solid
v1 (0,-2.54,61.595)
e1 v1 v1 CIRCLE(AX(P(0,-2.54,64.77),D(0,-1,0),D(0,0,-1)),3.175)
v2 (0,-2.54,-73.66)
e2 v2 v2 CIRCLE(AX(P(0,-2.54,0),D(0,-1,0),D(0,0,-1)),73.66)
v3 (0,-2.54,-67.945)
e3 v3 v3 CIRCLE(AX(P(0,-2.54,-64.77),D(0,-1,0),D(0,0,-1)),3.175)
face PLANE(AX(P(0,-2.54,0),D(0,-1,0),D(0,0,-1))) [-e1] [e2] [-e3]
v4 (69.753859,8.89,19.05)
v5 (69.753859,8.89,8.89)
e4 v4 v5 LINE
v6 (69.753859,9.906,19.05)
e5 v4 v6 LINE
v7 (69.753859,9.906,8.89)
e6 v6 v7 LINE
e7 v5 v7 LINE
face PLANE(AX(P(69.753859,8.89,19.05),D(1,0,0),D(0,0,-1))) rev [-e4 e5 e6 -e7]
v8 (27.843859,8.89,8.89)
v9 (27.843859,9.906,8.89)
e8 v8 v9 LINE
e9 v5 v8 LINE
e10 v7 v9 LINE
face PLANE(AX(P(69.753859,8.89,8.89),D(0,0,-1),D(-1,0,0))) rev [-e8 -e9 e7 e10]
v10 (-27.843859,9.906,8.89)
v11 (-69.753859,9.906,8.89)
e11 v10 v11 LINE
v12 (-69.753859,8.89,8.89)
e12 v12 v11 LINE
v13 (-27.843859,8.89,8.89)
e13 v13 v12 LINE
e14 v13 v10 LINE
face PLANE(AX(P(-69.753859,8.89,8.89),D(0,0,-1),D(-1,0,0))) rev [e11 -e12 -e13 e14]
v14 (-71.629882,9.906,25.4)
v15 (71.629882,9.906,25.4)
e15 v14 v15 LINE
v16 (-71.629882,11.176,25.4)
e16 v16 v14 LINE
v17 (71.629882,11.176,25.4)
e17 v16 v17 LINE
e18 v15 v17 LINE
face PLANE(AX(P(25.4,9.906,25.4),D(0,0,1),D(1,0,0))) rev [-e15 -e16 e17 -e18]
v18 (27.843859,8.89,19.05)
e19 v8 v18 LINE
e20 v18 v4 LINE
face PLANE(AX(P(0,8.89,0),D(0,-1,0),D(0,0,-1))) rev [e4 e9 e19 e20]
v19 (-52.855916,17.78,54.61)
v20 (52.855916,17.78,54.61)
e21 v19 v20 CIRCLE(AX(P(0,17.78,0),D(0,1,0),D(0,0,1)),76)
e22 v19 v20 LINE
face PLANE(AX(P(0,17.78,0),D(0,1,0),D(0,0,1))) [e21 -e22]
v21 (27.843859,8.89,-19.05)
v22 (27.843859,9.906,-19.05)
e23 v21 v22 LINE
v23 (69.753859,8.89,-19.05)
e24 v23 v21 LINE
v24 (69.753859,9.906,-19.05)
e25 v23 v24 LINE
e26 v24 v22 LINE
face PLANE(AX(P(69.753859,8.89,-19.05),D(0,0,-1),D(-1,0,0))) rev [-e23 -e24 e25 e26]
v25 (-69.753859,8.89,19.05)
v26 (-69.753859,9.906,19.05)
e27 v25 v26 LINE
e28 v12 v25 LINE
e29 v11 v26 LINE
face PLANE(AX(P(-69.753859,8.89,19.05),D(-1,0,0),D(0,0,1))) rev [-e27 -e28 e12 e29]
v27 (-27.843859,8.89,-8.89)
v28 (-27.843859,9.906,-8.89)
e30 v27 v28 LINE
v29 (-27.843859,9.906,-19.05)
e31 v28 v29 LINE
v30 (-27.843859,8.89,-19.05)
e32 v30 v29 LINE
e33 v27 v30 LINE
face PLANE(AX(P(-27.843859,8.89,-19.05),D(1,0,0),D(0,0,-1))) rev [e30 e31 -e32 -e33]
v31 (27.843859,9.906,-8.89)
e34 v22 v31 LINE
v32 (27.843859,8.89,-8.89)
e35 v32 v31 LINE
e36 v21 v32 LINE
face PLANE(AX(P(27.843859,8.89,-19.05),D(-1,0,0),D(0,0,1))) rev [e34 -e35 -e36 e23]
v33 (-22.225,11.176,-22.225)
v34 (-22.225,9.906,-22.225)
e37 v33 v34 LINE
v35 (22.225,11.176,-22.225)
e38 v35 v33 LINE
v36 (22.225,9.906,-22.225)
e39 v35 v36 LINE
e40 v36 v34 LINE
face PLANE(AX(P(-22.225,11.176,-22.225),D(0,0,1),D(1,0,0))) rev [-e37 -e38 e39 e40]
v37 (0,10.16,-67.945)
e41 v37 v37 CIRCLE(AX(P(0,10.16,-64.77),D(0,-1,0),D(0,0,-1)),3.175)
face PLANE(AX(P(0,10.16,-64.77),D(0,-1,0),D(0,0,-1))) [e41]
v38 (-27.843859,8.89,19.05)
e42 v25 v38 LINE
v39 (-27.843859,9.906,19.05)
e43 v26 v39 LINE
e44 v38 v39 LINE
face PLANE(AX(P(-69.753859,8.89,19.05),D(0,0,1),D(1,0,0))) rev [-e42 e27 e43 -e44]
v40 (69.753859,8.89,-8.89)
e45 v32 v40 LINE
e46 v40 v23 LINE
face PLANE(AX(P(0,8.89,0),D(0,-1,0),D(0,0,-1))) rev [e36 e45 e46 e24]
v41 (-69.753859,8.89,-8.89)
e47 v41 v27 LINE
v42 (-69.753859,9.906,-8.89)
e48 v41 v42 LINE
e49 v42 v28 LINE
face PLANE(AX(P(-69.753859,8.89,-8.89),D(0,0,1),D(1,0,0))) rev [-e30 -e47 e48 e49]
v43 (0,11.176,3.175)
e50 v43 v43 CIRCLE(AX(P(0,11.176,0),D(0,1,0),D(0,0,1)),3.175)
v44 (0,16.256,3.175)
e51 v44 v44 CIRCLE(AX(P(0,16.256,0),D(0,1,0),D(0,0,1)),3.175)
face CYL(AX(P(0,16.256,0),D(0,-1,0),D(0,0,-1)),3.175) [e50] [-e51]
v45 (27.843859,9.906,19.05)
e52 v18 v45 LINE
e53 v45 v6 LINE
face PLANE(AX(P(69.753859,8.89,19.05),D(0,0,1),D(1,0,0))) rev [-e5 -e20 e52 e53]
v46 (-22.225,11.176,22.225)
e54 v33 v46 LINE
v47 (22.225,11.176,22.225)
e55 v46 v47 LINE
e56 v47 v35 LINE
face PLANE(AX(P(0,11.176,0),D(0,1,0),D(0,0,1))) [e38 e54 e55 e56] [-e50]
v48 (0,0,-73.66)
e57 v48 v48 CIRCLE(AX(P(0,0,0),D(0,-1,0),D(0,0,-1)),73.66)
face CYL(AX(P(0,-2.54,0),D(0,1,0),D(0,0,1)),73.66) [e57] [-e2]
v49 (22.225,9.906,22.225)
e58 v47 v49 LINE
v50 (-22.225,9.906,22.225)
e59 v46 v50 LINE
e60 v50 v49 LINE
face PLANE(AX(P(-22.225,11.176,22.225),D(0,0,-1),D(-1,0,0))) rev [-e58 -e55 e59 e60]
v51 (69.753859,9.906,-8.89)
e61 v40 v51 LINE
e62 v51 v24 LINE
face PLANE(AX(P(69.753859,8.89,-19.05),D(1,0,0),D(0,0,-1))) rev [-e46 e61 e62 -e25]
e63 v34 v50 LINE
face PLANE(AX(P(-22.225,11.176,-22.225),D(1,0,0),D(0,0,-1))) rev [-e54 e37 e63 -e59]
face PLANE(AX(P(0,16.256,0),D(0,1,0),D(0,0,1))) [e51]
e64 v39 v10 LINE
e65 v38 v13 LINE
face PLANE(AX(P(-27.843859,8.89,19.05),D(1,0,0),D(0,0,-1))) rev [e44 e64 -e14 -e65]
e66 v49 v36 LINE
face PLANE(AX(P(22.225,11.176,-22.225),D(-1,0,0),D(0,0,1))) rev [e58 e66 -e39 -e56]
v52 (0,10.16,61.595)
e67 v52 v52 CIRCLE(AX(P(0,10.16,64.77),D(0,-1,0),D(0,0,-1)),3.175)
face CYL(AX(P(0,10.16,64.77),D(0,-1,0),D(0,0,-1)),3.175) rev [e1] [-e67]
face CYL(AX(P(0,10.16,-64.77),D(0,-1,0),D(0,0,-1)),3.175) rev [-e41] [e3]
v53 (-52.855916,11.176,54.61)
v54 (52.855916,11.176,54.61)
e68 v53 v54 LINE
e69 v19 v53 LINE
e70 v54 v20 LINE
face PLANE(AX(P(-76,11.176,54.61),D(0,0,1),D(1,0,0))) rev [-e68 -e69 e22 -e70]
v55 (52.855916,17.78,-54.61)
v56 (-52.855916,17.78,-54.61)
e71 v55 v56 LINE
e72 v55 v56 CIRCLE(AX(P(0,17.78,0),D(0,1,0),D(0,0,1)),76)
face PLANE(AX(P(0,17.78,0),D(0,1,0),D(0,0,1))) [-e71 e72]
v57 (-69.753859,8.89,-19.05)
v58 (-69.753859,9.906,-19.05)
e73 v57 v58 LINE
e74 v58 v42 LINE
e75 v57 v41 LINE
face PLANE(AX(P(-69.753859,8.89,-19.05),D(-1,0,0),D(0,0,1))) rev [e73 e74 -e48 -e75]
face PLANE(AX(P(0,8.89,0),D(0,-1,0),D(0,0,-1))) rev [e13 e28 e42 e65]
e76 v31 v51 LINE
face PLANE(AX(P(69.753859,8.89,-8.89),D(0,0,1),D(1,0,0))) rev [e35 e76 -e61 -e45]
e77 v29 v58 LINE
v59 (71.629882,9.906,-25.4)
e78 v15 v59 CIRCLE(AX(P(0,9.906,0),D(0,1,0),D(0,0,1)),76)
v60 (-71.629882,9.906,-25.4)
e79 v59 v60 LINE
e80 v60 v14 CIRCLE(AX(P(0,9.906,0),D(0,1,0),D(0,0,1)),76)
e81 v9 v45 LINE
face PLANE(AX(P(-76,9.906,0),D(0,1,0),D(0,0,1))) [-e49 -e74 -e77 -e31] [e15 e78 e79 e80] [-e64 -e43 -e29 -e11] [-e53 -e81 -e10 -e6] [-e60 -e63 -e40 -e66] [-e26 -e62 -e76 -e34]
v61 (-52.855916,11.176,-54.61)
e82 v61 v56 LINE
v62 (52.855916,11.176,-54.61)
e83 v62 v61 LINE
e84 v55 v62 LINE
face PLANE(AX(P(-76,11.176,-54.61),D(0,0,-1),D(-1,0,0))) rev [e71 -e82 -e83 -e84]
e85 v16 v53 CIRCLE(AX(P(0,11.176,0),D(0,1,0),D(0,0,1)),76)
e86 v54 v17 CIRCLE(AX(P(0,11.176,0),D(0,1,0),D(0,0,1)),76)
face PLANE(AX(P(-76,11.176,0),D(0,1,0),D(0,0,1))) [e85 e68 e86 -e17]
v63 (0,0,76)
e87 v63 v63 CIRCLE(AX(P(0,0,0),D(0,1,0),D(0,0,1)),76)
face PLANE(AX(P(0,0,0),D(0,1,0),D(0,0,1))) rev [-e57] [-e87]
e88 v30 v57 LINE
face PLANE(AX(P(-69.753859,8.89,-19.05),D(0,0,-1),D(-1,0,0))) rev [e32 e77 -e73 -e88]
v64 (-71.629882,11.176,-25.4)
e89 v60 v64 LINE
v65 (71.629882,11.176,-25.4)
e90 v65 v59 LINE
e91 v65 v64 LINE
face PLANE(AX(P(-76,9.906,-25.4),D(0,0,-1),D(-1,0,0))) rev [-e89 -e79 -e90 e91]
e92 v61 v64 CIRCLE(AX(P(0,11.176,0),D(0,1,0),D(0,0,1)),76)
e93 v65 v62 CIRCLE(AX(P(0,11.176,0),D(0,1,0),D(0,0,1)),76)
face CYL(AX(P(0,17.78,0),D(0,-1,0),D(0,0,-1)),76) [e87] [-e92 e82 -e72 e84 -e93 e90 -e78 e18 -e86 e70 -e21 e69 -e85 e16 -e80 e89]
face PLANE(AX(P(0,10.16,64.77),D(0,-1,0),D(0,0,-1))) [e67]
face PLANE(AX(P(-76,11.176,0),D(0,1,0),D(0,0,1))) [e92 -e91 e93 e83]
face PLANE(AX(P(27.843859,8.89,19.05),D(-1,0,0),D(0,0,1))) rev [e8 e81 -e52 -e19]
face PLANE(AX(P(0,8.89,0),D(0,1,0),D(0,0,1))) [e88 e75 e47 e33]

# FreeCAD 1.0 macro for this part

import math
import FreeCAD as App
import Part
import Sketcher

V = App.Vector
Q = App.Units.Quantity

doc = App.newDocument("Part")
params = doc.addObject("Spreadsheet::Sheet", "Params")
for row, (alias, value) in enumerate([
    ("pad1_length", "0.7 in"),
    ("sketch2_radius", "2.15 in"),
    ("pocket1_length", "0.26 in"),
    ("sketch3_radius", "1 in"),
    ("pocket2_length", "0.05 in"),
    ("sketch4_height", "0.4 in"),
    ("sketch4_width", "1.65 in"),
    ("pocket3_length", "0.04 in"),
    ("sketch5_width", "1.75 in"),
    ("pad2_length", "0.05 in"),
    ("sketch6_diameter", "0.25 in"),
    ("pad3_length", "0.2 in"),
    ("sketch7_diameter", "5.8 in"),
    ("pad4_length", "0.1 in"),
    ("sketch8_diameter", "0.25 in"),
    ("pocket4_length", "0.5 in"),
], start=1):
    params.set(f"A{row}", alias)
    params.set(f"B{row}", "=" + value)
    params.setAlias(f"B{row}", alias)

body = doc.addObject("PartDesign::Body", "Body")

sketch1 = body.newObject("Sketcher::SketchObject", "Sketch")
sketch1.AttachmentSupport = (doc.getObject("XZ_Plane"), [""])
sketch1.MapMode = "FlatFace"
sketch1.addGeometry(Part.Circle(V(0, 0, 0), V(0, 0, 1), 76), False)
sketch1.addConstraint(Sketcher.Constraint("Coincident", 0, 3, -1, 1))
sketch1.addConstraint(Sketcher.Constraint("Diameter", 0, 152.0))
pad1 = body.newObject("PartDesign::Pad", "Pad")
pad1.Profile = sketch1
pad1.setExpression("Length", "Params.pad1_length")
pad1.Reversed = True

sketch2 = body.newObject("Sketcher::SketchObject", "Sketch001")
sketch2.AttachmentSupport = (doc.getObject("XZ_Plane"), [""])
sketch2.MapMode = "FlatFace"
sketch2.AttachmentOffset = App.Placement(V(0, 0, -0.7 * 25.4), App.Rotation())
sketch2.addGeometry(Part.LineSegment(V(76, -54.61, 0), V(-76, -54.61, 0)), False)
sketch2.addGeometry(Part.ArcOfCircle(Part.Circle(V(-76, 0, 0), V(0, 0, 1), 54.61), math.radians(90), math.radians(270)), False)
sketch2.addGeometry(Part.LineSegment(V(-76, 54.61, 0), V(76, 54.61, 0)), False)
sketch2.addGeometry(Part.ArcOfCircle(Part.Circle(V(76, 0, 0), V(0, 0, 1), 54.61), math.radians(-90), math.radians(90)), False)
sketch2.addConstraint(Sketcher.Constraint("Tangent", 0, 2, 1, 2))
sketch2.addConstraint(Sketcher.Constraint("Tangent", 1, 1, 2, 1))
sketch2.addConstraint(Sketcher.Constraint("Tangent", 2, 2, 3, 2))
sketch2.addConstraint(Sketcher.Constraint("Tangent", 3, 1, 0, 1))
sketch2.addConstraint(Sketcher.Constraint("Horizontal", 0))
sketch2.addConstraint(Sketcher.Constraint("Horizontal", 2))
sketch2.addConstraint(Sketcher.Constraint("Symmetric", 1, 3, 3, 3, -1, 1))
sketch2.addConstraint(Sketcher.Constraint("Radius", 1, Q("2.15 in")))
sketch2.addConstraint(Sketcher.Constraint("DistanceX", 0, 2, 0, 1, 152.0))
sketch2.setExpression("Constraints[7]", "Params.sketch2_radius")
pocket1 = body.newObject("PartDesign::Pocket", "Pocket")
pocket1.Profile = sketch2
pocket1.setExpression("Length", "Params.pocket1_length")
pocket1.Reversed = True

sketch3 = body.newObject("Sketcher::SketchObject", "Sketch002")
sketch3.AttachmentSupport = (doc.getObject("XZ_Plane"), [""])
sketch3.MapMode = "FlatFace"
sketch3.AttachmentOffset = App.Placement(V(0, 0, -0.44 * 25.4), App.Rotation())
sketch3.addGeometry(Part.LineSegment(V(76, -25.4, 0), V(-76, -25.4, 0)), False)
sketch3.addGeometry(Part.ArcOfCircle(Part.Circle(V(-76, 0, 0), V(0, 0, 1), 25.4), math.radians(90), math.radians(270)), False)
sketch3.addGeometry(Part.LineSegment(V(-76, 25.4, 0), V(76, 25.4, 0)), False)
sketch3.addGeometry(Part.ArcOfCircle(Part.Circle(V(76, 0, 0), V(0, 0, 1), 25.4), math.radians(-90), math.radians(90)), False)
sketch3.addConstraint(Sketcher.Constraint("Tangent", 0, 2, 1, 2))
sketch3.addConstraint(Sketcher.Constraint("Tangent", 1, 1, 2, 1))
sketch3.addConstraint(Sketcher.Constraint("Tangent", 2, 2, 3, 2))
sketch3.addConstraint(Sketcher.Constraint("Tangent", 3, 1, 0, 1))
sketch3.addConstraint(Sketcher.Constraint("Horizontal", 0))
sketch3.addConstraint(Sketcher.Constraint("Horizontal", 2))
sketch3.addConstraint(Sketcher.Constraint("Symmetric", 1, 3, 3, 3, -1, 1))
sketch3.addConstraint(Sketcher.Constraint("Radius", 1, Q("1 in")))
sketch3.addConstraint(Sketcher.Constraint("DistanceX", 0, 2, 0, 1, 152.0))
sketch3.setExpression("Constraints[7]", "Params.sketch3_radius")
pocket2 = body.newObject("PartDesign::Pocket", "Pocket001")
pocket2.Profile = sketch3
pocket2.setExpression("Length", "Params.pocket2_length")
pocket2.Reversed = True

sketch4 = body.newObject("Sketcher::SketchObject", "Sketch003")
sketch4.AttachmentSupport = (doc.getObject("XZ_Plane"), [""])
sketch4.MapMode = "FlatFace"
sketch4.AttachmentOffset = App.Placement(V(0, 0, -0.39 * 25.4), App.Rotation())
sketch4.addGeometry(Part.LineSegment(V(-69.753859, -19.05, 0), V(-69.753859, -8.89, 0)), False)
sketch4.addGeometry(Part.LineSegment(V(-69.753859, -8.89, 0), V(-27.843859, -8.89, 0)), False)
sketch4.addGeometry(Part.LineSegment(V(-27.843859, -8.89, 0), V(-27.843859, -19.05, 0)), False)
sketch4.addGeometry(Part.LineSegment(V(-27.843859, -19.05, 0), V(-69.753859, -19.05, 0)), False)
sketch4.addGeometry(Part.LineSegment(V(-69.753859, 8.89, 0), V(-69.753859, 19.05, 0)), False)
sketch4.addGeometry(Part.LineSegment(V(-69.753859, 19.05, 0), V(-27.843859, 19.05, 0)), False)
sketch4.addGeometry(Part.LineSegment(V(-27.843859, 19.05, 0), V(-27.843859, 8.89, 0)), False)
sketch4.addGeometry(Part.LineSegment(V(-27.843859, 8.89, 0), V(-69.753859, 8.89, 0)), False)
sketch4.addGeometry(Part.LineSegment(V(27.843859, 8.89, 0), V(27.843859, 19.05, 0)), False)
sketch4.addGeometry(Part.LineSegment(V(27.843859, 19.05, 0), V(69.753859, 19.05, 0)), False)
sketch4.addGeometry(Part.LineSegment(V(69.753859, 19.05, 0), V(69.753859, 8.89, 0)), False)
sketch4.addGeometry(Part.LineSegment(V(69.753859, 8.89, 0), V(27.843859, 8.89, 0)), False)
sketch4.addGeometry(Part.LineSegment(V(27.843859, -19.05, 0), V(27.843859, -8.89, 0)), False)
sketch4.addGeometry(Part.LineSegment(V(27.843859, -8.89, 0), V(69.753859, -8.89, 0)), False)
sketch4.addGeometry(Part.LineSegment(V(69.753859, -8.89, 0), V(69.753859, -19.05, 0)), False)
sketch4.addGeometry(Part.LineSegment(V(69.753859, -19.05, 0), V(27.843859, -19.05, 0)), False)
sketch4.addConstraint(Sketcher.Constraint("Coincident", 0, 2, 1, 1))
sketch4.addConstraint(Sketcher.Constraint("Coincident", 1, 2, 2, 1))
sketch4.addConstraint(Sketcher.Constraint("Coincident", 2, 2, 3, 1))
sketch4.addConstraint(Sketcher.Constraint("Coincident", 3, 2, 0, 1))
sketch4.addConstraint(Sketcher.Constraint("Coincident", 4, 2, 5, 1))
sketch4.addConstraint(Sketcher.Constraint("Coincident", 5, 2, 6, 1))
sketch4.addConstraint(Sketcher.Constraint("Coincident", 6, 2, 7, 1))
sketch4.addConstraint(Sketcher.Constraint("Coincident", 7, 2, 4, 1))
sketch4.addConstraint(Sketcher.Constraint("Coincident", 8, 2, 9, 1))
sketch4.addConstraint(Sketcher.Constraint("Coincident", 9, 2, 10, 1))
sketch4.addConstraint(Sketcher.Constraint("Coincident", 10, 2, 11, 1))
sketch4.addConstraint(Sketcher.Constraint("Coincident", 11, 2, 8, 1))
sketch4.addConstraint(Sketcher.Constraint("Coincident", 12, 2, 13, 1))
sketch4.addConstraint(Sketcher.Constraint("Coincident", 13, 2, 14, 1))
sketch4.addConstraint(Sketcher.Constraint("Coincident", 14, 2, 15, 1))
sketch4.addConstraint(Sketcher.Constraint("Coincident", 15, 2, 12, 1))
sketch4.addConstraint(Sketcher.Constraint("Vertical", 0))
sketch4.addConstraint(Sketcher.Constraint("Horizontal", 1))
sketch4.addConstraint(Sketcher.Constraint("Vertical", 2))
sketch4.addConstraint(Sketcher.Constraint("Horizontal", 3))
sketch4.addConstraint(Sketcher.Constraint("Vertical", 4))
sketch4.addConstraint(Sketcher.Constraint("Horizontal", 5))
sketch4.addConstraint(Sketcher.Constraint("Vertical", 6))
sketch4.addConstraint(Sketcher.Constraint("Horizontal", 7))
sketch4.addConstraint(Sketcher.Constraint("Vertical", 8))
sketch4.addConstraint(Sketcher.Constraint("Horizontal", 9))
sketch4.addConstraint(Sketcher.Constraint("Vertical", 10))
sketch4.addConstraint(Sketcher.Constraint("Horizontal", 11))
sketch4.addConstraint(Sketcher.Constraint("Vertical", 12))
sketch4.addConstraint(Sketcher.Constraint("Horizontal", 13))
sketch4.addConstraint(Sketcher.Constraint("Vertical", 14))
sketch4.addConstraint(Sketcher.Constraint("Horizontal", 15))
sketch4.addConstraint(Sketcher.Constraint("Symmetric", 2, 2, 8, 2, -1, 1))
sketch4.addConstraint(Sketcher.Constraint("Symmetric", 0, 2, 10, 2, -1, 1))
sketch4.addConstraint(Sketcher.Constraint("Symmetric", 6, 2, 12, 2, -1, 1))
sketch4.addConstraint(Sketcher.Constraint("Symmetric", 4, 2, 14, 2, -1, 1))
sketch4.addConstraint(Sketcher.Constraint("Symmetric", 5, 2, 8, 2, -2))
sketch4.addConstraint(Sketcher.Constraint("Symmetric", 7, 2, 10, 2, -2))
sketch4.addConstraint(Sketcher.Constraint("DistanceY", 0, 1, 0, 2, Q("0.4 in")))
sketch4.addConstraint(Sketcher.Constraint("DistanceX", 1, 1, 1, 2, Q("1.65 in")))
sketch4.addConstraint(Sketcher.Constraint("DistanceY", 0, 2, 4, 2, Q("1.1 in")))
sketch4.addConstraint(Sketcher.Constraint("DistanceX", 0, 2, -1, 1, 69.753859))
sketch4.setExpression("Constraints[38]", "Params.sketch4_height")
sketch4.setExpression("Constraints[39]", "Params.sketch4_width")
pocket3 = body.newObject("PartDesign::Pocket", "Pocket002")
pocket3.Profile = sketch4
pocket3.setExpression("Length", "Params.pocket3_length")
pocket3.Reversed = True

sketch5 = body.newObject("Sketcher::SketchObject", "Sketch004")
sketch5.AttachmentSupport = (doc.getObject("XZ_Plane"), [""])
sketch5.MapMode = "FlatFace"
sketch5.AttachmentOffset = App.Placement(V(0, 0, -0.39 * 25.4), App.Rotation())
sketch5.addGeometry(Part.LineSegment(V(-22.225, -22.225, 0), V(-22.225, 22.225, 0)), False)
sketch5.addGeometry(Part.LineSegment(V(-22.225, 22.225, 0), V(22.225, 22.225, 0)), False)
sketch5.addGeometry(Part.LineSegment(V(22.225, 22.225, 0), V(22.225, -22.225, 0)), False)
sketch5.addGeometry(Part.LineSegment(V(22.225, -22.225, 0), V(-22.225, -22.225, 0)), False)
sketch5.addConstraint(Sketcher.Constraint("Coincident", 0, 2, 1, 1))
sketch5.addConstraint(Sketcher.Constraint("Coincident", 1, 2, 2, 1))
sketch5.addConstraint(Sketcher.Constraint("Coincident", 2, 2, 3, 1))
sketch5.addConstraint(Sketcher.Constraint("Coincident", 3, 2, 0, 1))
sketch5.addConstraint(Sketcher.Constraint("Vertical", 0))
sketch5.addConstraint(Sketcher.Constraint("Horizontal", 1))
sketch5.addConstraint(Sketcher.Constraint("Vertical", 2))
sketch5.addConstraint(Sketcher.Constraint("Horizontal", 3))
sketch5.addConstraint(Sketcher.Constraint("Symmetric", 0, 2, 2, 2, -1, 1))
sketch5.addConstraint(Sketcher.Constraint("Equal", 3, 0))
sketch5.addConstraint(Sketcher.Constraint("DistanceX", 1, 1, 1, 2, Q("1.75 in")))
sketch5.setExpression("Constraints[10]", "Params.sketch5_width")
pad2 = body.newObject("PartDesign::Pad", "Pad001")
pad2.Profile = sketch5
pad2.setExpression("Length", "Params.pad2_length")
pad2.Reversed = True

sketch6 = body.newObject("Sketcher::SketchObject", "Sketch005")
sketch6.AttachmentSupport = (doc.getObject("XZ_Plane"), [""])
sketch6.MapMode = "FlatFace"
sketch6.AttachmentOffset = App.Placement(V(0, 0, -0.44 * 25.4), App.Rotation())
sketch6.addGeometry(Part.Circle(V(0, 0, 0), V(0, 0, 1), 3.175), False)
sketch6.addConstraint(Sketcher.Constraint("Coincident", 0, 3, -1, 1))
sketch6.addConstraint(Sketcher.Constraint("Diameter", 0, Q("0.25 in")))
sketch6.setExpression("Constraints[1]", "Params.sketch6_diameter")
pad3 = body.newObject("PartDesign::Pad", "Pad002")
pad3.Profile = sketch6
pad3.setExpression("Length", "Params.pad3_length")
pad3.Reversed = True

sketch7 = body.newObject("Sketcher::SketchObject", "Sketch006")
sketch7.AttachmentSupport = (doc.getObject("XZ_Plane"), [""])
sketch7.MapMode = "FlatFace"
sketch7.addGeometry(Part.Circle(V(0, 0, 0), V(0, 0, 1), 73.66), False)
sketch7.addConstraint(Sketcher.Constraint("Coincident", 0, 3, -1, 1))
sketch7.addConstraint(Sketcher.Constraint("Diameter", 0, Q("5.8 in")))
sketch7.setExpression("Constraints[1]", "Params.sketch7_diameter")
pad4 = body.newObject("PartDesign::Pad", "Pad003")
pad4.Profile = sketch7
pad4.setExpression("Length", "Params.pad4_length")

sketch8 = body.newObject("Sketcher::SketchObject", "Sketch007")
sketch8.AttachmentSupport = (doc.getObject("XZ_Plane"), [""])
sketch8.MapMode = "FlatFace"
sketch8.AttachmentOffset = App.Placement(V(0, 0, 0.1 * 25.4), App.Rotation())
sketch8.addGeometry(Part.Circle(V(0, 64.77, 0), V(0, 0, 1), 3.175), False)
sketch8.addGeometry(Part.Circle(V(0, -64.77, 0), V(0, 0, 1), 3.175), False)
sketch8.addConstraint(Sketcher.Constraint("Equal", 0, 1))
sketch8.addConstraint(Sketcher.Constraint("Symmetric", 0, 3, 1, 3, -1, 1))
sketch8.addConstraint(Sketcher.Constraint("PointOnObject", 0, 3, -2))
sketch8.addConstraint(Sketcher.Constraint("Diameter", 0, Q("0.25 in")))
sketch8.addConstraint(Sketcher.Constraint("DistanceY", 1, 3, 0, 3, Q("5.1 in")))
sketch8.setExpression("Constraints[3]", "Params.sketch8_diameter")
pocket4 = body.newObject("PartDesign::Pocket", "Pocket003")
pocket4.Profile = sketch8
pocket4.setExpression("Length", "Params.pocket4_length")

doc.recompute()
